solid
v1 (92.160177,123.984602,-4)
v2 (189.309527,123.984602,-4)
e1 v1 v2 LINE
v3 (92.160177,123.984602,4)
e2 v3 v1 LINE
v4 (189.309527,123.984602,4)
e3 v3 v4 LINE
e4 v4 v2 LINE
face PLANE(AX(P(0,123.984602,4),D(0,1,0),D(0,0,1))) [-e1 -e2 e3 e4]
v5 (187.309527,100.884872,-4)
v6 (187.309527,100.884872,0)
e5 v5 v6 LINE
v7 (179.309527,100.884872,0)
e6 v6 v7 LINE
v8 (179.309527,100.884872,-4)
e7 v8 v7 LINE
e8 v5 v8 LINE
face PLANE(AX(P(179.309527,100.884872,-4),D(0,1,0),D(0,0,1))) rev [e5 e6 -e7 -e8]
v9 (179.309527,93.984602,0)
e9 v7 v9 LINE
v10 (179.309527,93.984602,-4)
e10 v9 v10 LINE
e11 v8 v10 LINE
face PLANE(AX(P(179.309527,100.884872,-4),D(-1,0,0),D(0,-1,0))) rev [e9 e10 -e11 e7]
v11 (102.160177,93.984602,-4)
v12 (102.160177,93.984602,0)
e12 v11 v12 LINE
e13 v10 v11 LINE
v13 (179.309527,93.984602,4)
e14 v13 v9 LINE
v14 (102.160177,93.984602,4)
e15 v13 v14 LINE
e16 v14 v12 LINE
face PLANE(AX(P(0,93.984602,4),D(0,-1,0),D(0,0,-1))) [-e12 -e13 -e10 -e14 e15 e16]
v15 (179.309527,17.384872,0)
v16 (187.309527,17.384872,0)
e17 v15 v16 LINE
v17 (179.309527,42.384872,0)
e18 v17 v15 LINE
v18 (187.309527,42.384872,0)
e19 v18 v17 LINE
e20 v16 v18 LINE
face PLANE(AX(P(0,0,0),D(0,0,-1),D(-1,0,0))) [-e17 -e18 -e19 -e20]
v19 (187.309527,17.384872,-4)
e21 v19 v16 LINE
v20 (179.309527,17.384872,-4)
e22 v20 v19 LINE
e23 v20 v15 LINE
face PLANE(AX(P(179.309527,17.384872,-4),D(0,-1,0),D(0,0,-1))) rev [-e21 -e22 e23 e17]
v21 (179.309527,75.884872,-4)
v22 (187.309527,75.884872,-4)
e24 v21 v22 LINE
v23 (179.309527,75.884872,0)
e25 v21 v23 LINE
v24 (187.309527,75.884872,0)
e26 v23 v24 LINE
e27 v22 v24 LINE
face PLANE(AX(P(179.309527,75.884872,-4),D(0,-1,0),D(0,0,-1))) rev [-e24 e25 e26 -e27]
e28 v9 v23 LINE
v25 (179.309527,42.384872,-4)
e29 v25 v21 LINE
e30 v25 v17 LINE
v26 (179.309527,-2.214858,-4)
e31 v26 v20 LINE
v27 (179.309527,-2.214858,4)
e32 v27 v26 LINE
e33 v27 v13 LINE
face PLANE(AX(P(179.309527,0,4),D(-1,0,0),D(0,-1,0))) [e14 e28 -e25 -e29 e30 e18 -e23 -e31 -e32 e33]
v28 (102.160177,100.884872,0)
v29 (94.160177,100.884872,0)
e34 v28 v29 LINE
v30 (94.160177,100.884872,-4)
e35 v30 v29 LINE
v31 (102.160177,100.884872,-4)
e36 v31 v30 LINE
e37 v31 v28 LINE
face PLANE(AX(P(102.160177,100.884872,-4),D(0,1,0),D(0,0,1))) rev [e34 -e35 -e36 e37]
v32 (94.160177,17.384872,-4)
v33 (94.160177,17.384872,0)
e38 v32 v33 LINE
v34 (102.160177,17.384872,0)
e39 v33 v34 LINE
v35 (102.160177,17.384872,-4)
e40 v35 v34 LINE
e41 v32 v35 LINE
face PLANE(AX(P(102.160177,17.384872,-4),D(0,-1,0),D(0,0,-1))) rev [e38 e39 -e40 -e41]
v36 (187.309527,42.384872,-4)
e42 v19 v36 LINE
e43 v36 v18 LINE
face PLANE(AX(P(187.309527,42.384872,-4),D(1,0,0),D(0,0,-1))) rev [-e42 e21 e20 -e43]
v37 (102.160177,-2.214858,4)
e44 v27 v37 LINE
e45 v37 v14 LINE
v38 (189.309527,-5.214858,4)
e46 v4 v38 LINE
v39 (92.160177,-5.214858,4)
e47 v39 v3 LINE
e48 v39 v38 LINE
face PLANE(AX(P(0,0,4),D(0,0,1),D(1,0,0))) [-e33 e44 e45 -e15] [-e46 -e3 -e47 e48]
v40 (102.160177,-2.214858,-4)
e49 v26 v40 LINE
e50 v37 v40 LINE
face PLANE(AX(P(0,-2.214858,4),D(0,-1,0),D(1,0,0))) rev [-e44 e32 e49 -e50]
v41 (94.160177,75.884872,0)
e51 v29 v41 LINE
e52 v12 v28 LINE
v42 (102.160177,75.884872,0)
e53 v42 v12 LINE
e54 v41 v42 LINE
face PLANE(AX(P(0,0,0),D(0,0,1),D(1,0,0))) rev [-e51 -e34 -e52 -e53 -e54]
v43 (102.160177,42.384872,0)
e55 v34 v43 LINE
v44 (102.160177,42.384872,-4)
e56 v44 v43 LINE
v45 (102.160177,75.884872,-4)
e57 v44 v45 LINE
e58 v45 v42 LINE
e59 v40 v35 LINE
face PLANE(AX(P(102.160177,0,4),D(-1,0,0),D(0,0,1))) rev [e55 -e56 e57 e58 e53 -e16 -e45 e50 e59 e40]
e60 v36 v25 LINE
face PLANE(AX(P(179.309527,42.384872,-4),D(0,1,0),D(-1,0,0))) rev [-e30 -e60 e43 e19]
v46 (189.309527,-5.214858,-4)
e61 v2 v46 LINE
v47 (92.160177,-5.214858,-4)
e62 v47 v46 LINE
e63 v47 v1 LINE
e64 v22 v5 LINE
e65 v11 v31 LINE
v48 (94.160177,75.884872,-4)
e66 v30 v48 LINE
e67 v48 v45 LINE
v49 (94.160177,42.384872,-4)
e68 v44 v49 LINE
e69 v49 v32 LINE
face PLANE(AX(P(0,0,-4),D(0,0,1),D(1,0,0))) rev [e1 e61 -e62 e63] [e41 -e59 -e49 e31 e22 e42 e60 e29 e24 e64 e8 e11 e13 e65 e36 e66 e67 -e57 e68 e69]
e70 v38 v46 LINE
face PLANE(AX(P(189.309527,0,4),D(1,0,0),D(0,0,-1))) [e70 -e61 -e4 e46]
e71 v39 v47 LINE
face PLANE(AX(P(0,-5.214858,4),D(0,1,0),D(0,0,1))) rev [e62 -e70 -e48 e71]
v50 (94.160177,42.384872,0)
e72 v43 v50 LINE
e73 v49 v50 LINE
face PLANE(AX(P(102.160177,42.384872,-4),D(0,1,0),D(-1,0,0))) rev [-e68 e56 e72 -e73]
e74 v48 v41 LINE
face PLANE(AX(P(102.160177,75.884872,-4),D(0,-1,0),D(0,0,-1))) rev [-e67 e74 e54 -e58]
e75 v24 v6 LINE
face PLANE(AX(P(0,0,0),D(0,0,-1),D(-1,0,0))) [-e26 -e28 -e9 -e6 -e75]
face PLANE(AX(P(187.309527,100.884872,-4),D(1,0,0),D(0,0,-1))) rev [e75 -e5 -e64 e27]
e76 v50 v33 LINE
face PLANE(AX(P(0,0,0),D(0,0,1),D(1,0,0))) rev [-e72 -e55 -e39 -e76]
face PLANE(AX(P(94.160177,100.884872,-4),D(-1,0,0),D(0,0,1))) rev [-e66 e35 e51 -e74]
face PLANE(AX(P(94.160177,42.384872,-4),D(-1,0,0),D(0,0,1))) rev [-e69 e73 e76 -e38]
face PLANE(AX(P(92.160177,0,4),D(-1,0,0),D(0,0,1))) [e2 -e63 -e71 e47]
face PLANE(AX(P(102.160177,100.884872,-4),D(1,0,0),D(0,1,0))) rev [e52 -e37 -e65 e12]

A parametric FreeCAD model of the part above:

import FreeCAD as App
import Part
import Sketcher
Q = App.Units.Quantity

doc = App.newDocument("Part")
body = doc.addObject("PartDesign::Body", "Body")

sketch1 = doc.addObject("Sketcher::SketchObject", "Sketch")
body.addObject(sketch1)
sketch1.AttachmentSupport = (doc.XY_Plane, [""])
sketch1.MapMode = "FlatFace"
sketch1.addGeometry([
    Part.LineSegment(App.Vector(189, 124, 0), App.Vector(92, 124, 0)),
    Part.LineSegment(App.Vector(92, 124, 0), App.Vector(92, -5, 0)),
    Part.LineSegment(App.Vector(92, -5, 0), App.Vector(189, -5, 0)),
    Part.LineSegment(App.Vector(189, -5, 0), App.Vector(189, 124, 0)),
    Part.LineSegment(App.Vector(179, -2, 0), App.Vector(102, -2, 0)),
    Part.LineSegment(App.Vector(102, -2, 0), App.Vector(102, 94, 0)),
    Part.LineSegment(App.Vector(102, 94, 0), App.Vector(179, 94, 0)),
    Part.LineSegment(App.Vector(179, 94, 0), App.Vector(179, -2, 0)),
], False)
sketch1.addConstraint([
    Sketcher.Constraint("Coincident", 0, 2, 1, 1),
    Sketcher.Constraint("Coincident", 1, 2, 2, 1),
    Sketcher.Constraint("Coincident", 2, 2, 3, 1),
    Sketcher.Constraint("Coincident", 3, 2, 0, 1),
    Sketcher.Constraint("Coincident", 4, 2, 5, 1),
    Sketcher.Constraint("Coincident", 5, 2, 6, 1),
    Sketcher.Constraint("Coincident", 6, 2, 7, 1),
    Sketcher.Constraint("Coincident", 7, 2, 4, 1),
    Sketcher.Constraint("Horizontal", 0),
    Sketcher.Constraint("Vertical", 1),
    Sketcher.Constraint("Horizontal", 2),
    Sketcher.Constraint("Vertical", 3),
    Sketcher.Constraint("Horizontal", 4),
    Sketcher.Constraint("Vertical", 5),
    Sketcher.Constraint("Horizontal", 6),
    Sketcher.Constraint("Vertical", 7),
    Sketcher.Constraint("DistanceX", 1, 2, 4, 2, Q("10 mm")),
    Sketcher.Constraint("DistanceY", 1, 2, 4, 2, Q("3 mm")),
    Sketcher.Constraint("DistanceY", 5, 2, 0, 2, Q("30 mm")),
    Sketcher.Constraint("DistanceX", 6, 2, 3, 2, Q("10 mm")),
    Sketcher.Constraint("DistanceX", 0, 2, 0, 1, Q("97.14935 mm")),
    Sketcher.Constraint("DistanceY", 1, 2, 1, 1, Q("129.19946 mm")),
    Sketcher.Constraint("DistanceX", -1, 1, 0, 2, Q("92.160177 mm")),
    Sketcher.Constraint("DistanceY", -1, 1, 0, 2, Q("123.984602 mm")),
])
pad1 = doc.addObject("PartDesign::Pad", "Pad")
body.addObject(pad1)
pad1.Profile = sketch1
pad1.Length = 8
pad1.Midplane = True

sketch2 = doc.addObject("Sketcher::SketchObject", "Sketch001")
body.addObject(sketch2)
sketch2.AttachmentSupport = (doc.XY_Plane, [""])
sketch2.MapMode = "FlatFace"
sketch2.addGeometry([
    Part.LineSegment(App.Vector(94, 42, 0), App.Vector(94, 17, 0)),
    Part.LineSegment(App.Vector(94, 17, 0), App.Vector(102, 17, 0)),
    Part.LineSegment(App.Vector(102, 17, 0), App.Vector(102, 42, 0)),
    Part.LineSegment(App.Vector(102, 42, 0), App.Vector(94, 42, 0)),
    Part.LineSegment(App.Vector(179, 101, 0), App.Vector(179, 76, 0)),
    Part.LineSegment(App.Vector(179, 76, 0), App.Vector(187, 76, 0)),
    Part.LineSegment(App.Vector(187, 76, 0), App.Vector(187, 101, 0)),
    Part.LineSegment(App.Vector(187, 101, 0), App.Vector(179, 101, 0)),
    Part.LineSegment(App.Vector(94, 101, 0), App.Vector(94, 76, 0)),
    Part.LineSegment(App.Vector(94, 76, 0), App.Vector(102, 76, 0)),
    Part.LineSegment(App.Vector(102, 76, 0), App.Vector(102, 101, 0)),
    Part.LineSegment(App.Vector(102, 101, 0), App.Vector(94, 101, 0)),
    Part.LineSegment(App.Vector(179, 42, 0), App.Vector(179, 17, 0)),
    Part.LineSegment(App.Vector(179, 17, 0), App.Vector(187, 17, 0)),
    Part.LineSegment(App.Vector(187, 17, 0), App.Vector(187, 42, 0)),
    Part.LineSegment(App.Vector(187, 42, 0), App.Vector(179, 42, 0)),
], False)
sketch2.addConstraint([
    Sketcher.Constraint("Coincident", 0, 2, 1, 1),
    Sketcher.Constraint("Coincident", 1, 2, 2, 1),
    Sketcher.Constraint("Coincident", 2, 2, 3, 1),
    Sketcher.Constraint("Coincident", 3, 2, 0, 1),
    Sketcher.Constraint("Coincident", 4, 2, 5, 1),
    Sketcher.Constraint("Coincident", 5, 2, 6, 1),
    Sketcher.Constraint("Coincident", 6, 2, 7, 1),
    Sketcher.Constraint("Coincident", 7, 2, 4, 1),
    Sketcher.Constraint("Coincident", 8, 2, 9, 1),
    Sketcher.Constraint("Coincident", 9, 2, 10, 1),
    Sketcher.Constraint("Coincident", 10, 2, 11, 1),
    Sketcher.Constraint("Coincident", 11, 2, 8, 1),
    Sketcher.Constraint("Coincident", 12, 2, 13, 1),
    Sketcher.Constraint("Coincident", 13, 2, 14, 1),
    Sketcher.Constraint("Coincident", 14, 2, 15, 1),
    Sketcher.Constraint("Coincident", 15, 2, 12, 1),
    Sketcher.Constraint("Vertical", 0),
    Sketcher.Constraint("Horizontal", 1),
    Sketcher.Constraint("Vertical", 2),
    Sketcher.Constraint("Horizontal", 3),
    Sketcher.Constraint("Vertical", 4),
    Sketcher.Constraint("Horizontal", 5),
    Sketcher.Constraint("Vertical", 6),
    Sketcher.Constraint("Horizontal", 7),
    Sketcher.Constraint("Vertical", 8),
    Sketcher.Constraint("Horizontal", 9),
    Sketcher.Constraint("Vertical", 10),
    Sketcher.Constraint("Horizontal", 11),
    Sketcher.Constraint("Vertical", 12),
    Sketcher.Constraint("Horizontal", 13),
    Sketcher.Constraint("Vertical", 14),
    Sketcher.Constraint("Horizontal", 15),
    Sketcher.Constraint("Horizontal", 5, 2, 8, 2),
    Sketcher.Constraint("Horizontal", 7, 2, 10, 2),
    Sketcher.Constraint("Horizontal", 1, 2, 12, 2),
    Sketcher.Constraint("Horizontal", 3, 2, 14, 2),
    Sketcher.Constraint("Vertical", 3, 2, 8, 2),
    Sketcher.Constraint("Vertical", 2, 2, 9, 2),
    Sketcher.Constraint("Vertical", 7, 2, 12, 2),
    Sketcher.Constraint("Vertical", 6, 2, 13, 2),
    Sketcher.Constraint("Equal", 3, 5),
    Sketcher.Constraint("Equal", 2, 4),
    Sketcher.Constraint("DistanceX", 1, 1, 1, 2, Q("8 mm")),
    Sketcher.Constraint("DistanceY", 0, 2, 0, 1, Q("25 mm")),
    Sketcher.Constraint("DistanceY", 2, 2, 4, 2, Q("33.5 mm")),
    Sketcher.Constraint("DistanceX", 2, 2, 4, 2, Q("77.14935 mm")),
    Sketcher.Constraint("DistanceX", -1, 1, 0, 2, Q("94.160177 mm")),
    Sketcher.Constraint("DistanceY", -1, 1, 0, 2, Q("17.384872 mm")),
])
pocket1 = doc.addObject("PartDesign::Pocket", "Pocket")
body.addObject(pocket1)
pocket1.Profile = sketch2
pocket1.Type = "ThroughAll"

doc.recompute()
